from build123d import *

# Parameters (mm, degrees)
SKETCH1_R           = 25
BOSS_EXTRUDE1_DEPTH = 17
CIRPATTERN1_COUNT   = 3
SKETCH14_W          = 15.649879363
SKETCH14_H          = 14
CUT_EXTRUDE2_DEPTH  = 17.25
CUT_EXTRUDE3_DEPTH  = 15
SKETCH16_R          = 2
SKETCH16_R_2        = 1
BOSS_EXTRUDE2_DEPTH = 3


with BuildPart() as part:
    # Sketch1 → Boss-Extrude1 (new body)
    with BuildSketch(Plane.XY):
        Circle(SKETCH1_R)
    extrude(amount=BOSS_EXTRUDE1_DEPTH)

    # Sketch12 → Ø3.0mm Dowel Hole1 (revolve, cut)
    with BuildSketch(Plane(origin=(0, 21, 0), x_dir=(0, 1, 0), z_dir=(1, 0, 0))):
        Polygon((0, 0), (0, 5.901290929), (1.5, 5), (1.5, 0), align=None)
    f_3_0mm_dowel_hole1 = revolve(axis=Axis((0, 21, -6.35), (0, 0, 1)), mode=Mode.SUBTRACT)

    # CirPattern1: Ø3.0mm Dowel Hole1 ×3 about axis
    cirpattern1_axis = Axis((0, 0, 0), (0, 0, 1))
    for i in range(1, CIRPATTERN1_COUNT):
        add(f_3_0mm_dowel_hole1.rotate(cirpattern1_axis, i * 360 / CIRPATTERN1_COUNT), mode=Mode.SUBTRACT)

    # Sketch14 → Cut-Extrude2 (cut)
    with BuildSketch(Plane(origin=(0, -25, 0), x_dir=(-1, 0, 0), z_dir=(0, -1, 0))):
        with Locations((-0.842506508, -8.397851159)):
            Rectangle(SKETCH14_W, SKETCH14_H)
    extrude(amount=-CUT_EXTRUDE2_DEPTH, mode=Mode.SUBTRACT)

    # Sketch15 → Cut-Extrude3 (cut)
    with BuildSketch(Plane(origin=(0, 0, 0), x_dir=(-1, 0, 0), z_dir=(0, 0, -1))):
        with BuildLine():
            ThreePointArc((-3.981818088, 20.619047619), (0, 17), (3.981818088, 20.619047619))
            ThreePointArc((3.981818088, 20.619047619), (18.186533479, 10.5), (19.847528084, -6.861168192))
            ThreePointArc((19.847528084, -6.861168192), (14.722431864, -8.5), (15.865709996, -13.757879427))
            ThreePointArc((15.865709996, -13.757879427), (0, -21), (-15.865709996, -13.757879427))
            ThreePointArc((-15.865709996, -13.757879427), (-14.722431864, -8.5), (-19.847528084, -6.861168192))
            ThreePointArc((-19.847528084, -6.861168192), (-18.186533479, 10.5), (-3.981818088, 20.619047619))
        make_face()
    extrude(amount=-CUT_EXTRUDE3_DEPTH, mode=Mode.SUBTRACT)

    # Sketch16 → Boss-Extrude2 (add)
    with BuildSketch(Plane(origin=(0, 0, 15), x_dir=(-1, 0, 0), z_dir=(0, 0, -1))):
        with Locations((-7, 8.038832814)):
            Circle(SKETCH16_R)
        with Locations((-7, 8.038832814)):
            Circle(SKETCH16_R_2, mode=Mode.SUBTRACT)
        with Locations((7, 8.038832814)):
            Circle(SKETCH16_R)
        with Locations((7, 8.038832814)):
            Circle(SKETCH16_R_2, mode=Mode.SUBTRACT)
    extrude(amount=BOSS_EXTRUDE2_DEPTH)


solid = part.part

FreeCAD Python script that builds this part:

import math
import FreeCAD as App
import Part
import Sketcher

V = App.Vector
Q = App.Units.Quantity

doc = App.newDocument("Part")
body = doc.addObject("PartDesign::Body", "Body")

# Sketch on XY plane
sketch1 = doc.addObject("Sketcher::SketchObject", "Sketch")
body.addObject(sketch1)
sketch1.AttachmentSupport = (doc.XY_Plane, [""])
sketch1.MapMode = "FlatFace"
sketch1.addGeometry(Part.Circle(V(0, 0, 0), V(0, 0, 1), 25), False)
sketch1.addConstraint(Sketcher.Constraint("Coincident", 0, 3, -1, 1))
sketch1.addConstraint(Sketcher.Constraint("Diameter", 0, Q("50 mm")))
pad1 = doc.addObject("PartDesign::Pad", "Pad")
body.addObject(pad1)
pad1.Profile = sketch1
pad1.Length = 17

# Sketch on YZ plane
sketch2 = doc.addObject("Sketcher::SketchObject", "Sketch001")
body.addObject(sketch2)
sketch2.AttachmentSupport = (doc.YZ_Plane, [""])
sketch2.MapMode = "FlatFace"
sketch2.addGeometry(Part.LineSegment(V(21, 5.9, 0), V(21, 0, 0)), False)
sketch2.addGeometry(Part.LineSegment(V(21, 0, 0), V(22.5, 0, 0)), False)
sketch2.addGeometry(Part.LineSegment(V(22.5, 0, 0), V(22.5, 5, 0)), False)
sketch2.addGeometry(Part.LineSegment(V(22.5, 5, 0), V(21, 5.9, 0)), False)
sketch2.addGeometry(Part.LineSegment(V(21, 0, 0), V(21, 5.9, 0)), True)  # axis
sketch2.addConstraint(Sketcher.Constraint("Coincident", 0, 2, 1, 1))
sketch2.addConstraint(Sketcher.Constraint("Coincident", 1, 2, 2, 1))
sketch2.addConstraint(Sketcher.Constraint("Coincident", 2, 2, 3, 1))
sketch2.addConstraint(Sketcher.Constraint("Coincident", 3, 2, 0, 1))
sketch2.addConstraint(Sketcher.Constraint("Vertical", 0))
sketch2.addConstraint(Sketcher.Constraint("Horizontal", 1))
sketch2.addConstraint(Sketcher.Constraint("Vertical", 2))
sketch2.addConstraint(Sketcher.Constraint("Vertical", 4))
sketch2.addConstraint(Sketcher.Constraint("Coincident", 4, 1, 0, 2))
sketch2.addConstraint(Sketcher.Constraint("PointOnObject", 0, 2, -1))
sketch2.addConstraint(Sketcher.Constraint("Equal", 0, 4))
sketch2.addConstraint(Sketcher.Constraint("DistanceY", 2, 1, 2, 2, Q("5 mm")))
sketch2.addConstraint(Sketcher.Constraint("Angle", 3, Q("149 deg")))
sketch2.addConstraint(Sketcher.Constraint("DistanceX", 1, 1, 1, 2, Q("1.5 mm")))
sketch2.addConstraint(Sketcher.Constraint("DistanceX", -1, 1, 0, 2, Q("21 mm")))
groove = doc.addObject("PartDesign::Groove", "Groove")
body.addObject(groove)
groove.Profile = sketch2
groove.ReferenceAxis = (sketch2, ["Axis0"])
groove.Angle = 360
doc.recompute()

polarpattern = doc.addObject("PartDesign::PolarPattern", "PolarPattern")
body.addObject(polarpattern)
polarpattern.Originals = [groove]
polarpattern.Axis = (doc.Z_Axis, [""])
polarpattern.Angle = 360
polarpattern.Occurrences = 3
body.Tip = polarpattern

# Sketch on XZ plane
sketch3 = doc.addObject("Sketcher::SketchObject", "Sketch002")
body.addObject(sketch3)
sketch3.AttachmentSupport = (doc.XZ_Plane, [""])
sketch3.MapMode = "FlatFace"
sketch3.AttachmentOffset = App.Placement(V(0, 0, 25), App.Rotation())
sketch3.addGeometry(Part.LineSegment(V(9, 1, 0), V(9, 15, 0)), False)
sketch3.addGeometry(Part.LineSegment(V(9, 15, 0), V(-7, 15, 0)), False)
sketch3.addGeometry(Part.LineSegment(V(-7, 15, 0), V(-7, 1, 0)), False)
sketch3.addGeometry(Part.LineSegment(V(-7, 1, 0), V(9, 1, 0)), False)
sketch3.addConstraint(Sketcher.Constraint("Coincident", 0, 2, 1, 1))
sketch3.addConstraint(Sketcher.Constraint("Coincident", 1, 2, 2, 1))
sketch3.addConstraint(Sketcher.Constraint("Coincident", 2, 2, 3, 1))
sketch3.addConstraint(Sketcher.Constraint("Coincident", 3, 2, 0, 1))
sketch3.addConstraint(Sketcher.Constraint("Vertical", 0))
sketch3.addConstraint(Sketcher.Constraint("Horizontal", 1))
sketch3.addConstraint(Sketcher.Constraint("Vertical", 2))
sketch3.addConstraint(Sketcher.Constraint("Horizontal", 3))
sketch3.addConstraint(Sketcher.Constraint("DistanceY", 0, 1, 0, 2, Q("14 mm")))
sketch3.addConstraint(Sketcher.Constraint("DistanceX", 1, 2, 1, 1, Q("15.649879 mm")))
sketch3.addConstraint(Sketcher.Constraint("DistanceY", -1, 1, 0, 2, Q("15.397851 mm")))
sketch3.addConstraint(Sketcher.Constraint("DistanceX", -1, 1, 0, 2, Q("8.667446 mm")))
pocket1 = doc.addObject("PartDesign::Pocket", "Pocket")
body.addObject(pocket1)
pocket1.Profile = sketch3
pocket1.Length = 17.25

# Sketch on XY plane
sketch4 = doc.addObject("Sketcher::SketchObject", "Sketch003")
body.addObject(sketch4)
sketch4.AttachmentSupport = (doc.XY_Plane, [""])
sketch4.MapMode = "FlatFace"
sketch4.addGeometry(Part.ArcOfCircle(Part.Circle(V(0, 21, 0), V(0, 0, 1), 4), math.radians(-175), math.radians(-5)), False)
sketch4.addGeometry(Part.ArcOfCircle(Part.Circle(V(0, 0, 0), V(0, 0, 1), 21), math.radians(-19), math.radians(79)), False)
sketch4.addGeometry(Part.ArcOfCircle(Part.Circle(V(18.2, -10.5, 0), V(0, 0, 1), 4), math.radians(65), math.radians(235)), False)
sketch4.addGeometry(Part.ArcOfCircle(Part.Circle(V(0, 0, 0), V(0, 0, 1), 21), math.radians(-139), math.radians(-41)), False)
sketch4.addGeometry(Part.ArcOfCircle(Part.Circle(V(-18.2, -10.5, 0), V(0, 0, 1), 4), math.radians(-55), math.radians(115)), False)
sketch4.addGeometry(Part.ArcOfCircle(Part.Circle(V(0, 0, 0), V(0, 0, 1), 21), math.radians(101), math.radians(199)), False)
sketch4.addConstraint(Sketcher.Constraint("Coincident", 0, 2, 1, 2))
sketch4.addConstraint(Sketcher.Constraint("Coincident", 1, 1, 2, 1))
sketch4.addConstraint(Sketcher.Constraint("Coincident", 2, 2, 3, 2))
sketch4.addConstraint(Sketcher.Constraint("Coincident", 3, 1, 4, 1))
sketch4.addConstraint(Sketcher.Constraint("Coincident", 4, 2, 5, 2))
sketch4.addConstraint(Sketcher.Constraint("Coincident", 5, 1, 0, 1))
sketch4.addConstraint(Sketcher.Constraint("Coincident", 1, 3, -1, 1))
sketch4.addConstraint(Sketcher.Constraint("Coincident", 3, 3, -1, 1))
sketch4.addConstraint(Sketcher.Constraint("Coincident", 5, 3, -1, 1))
sketch4.addConstraint(Sketcher.Constraint("Equal", 0, 2))
sketch4.addConstraint(Sketcher.Constraint("Equal", 1, 3))
sketch4.addConstraint(Sketcher.Constraint("Equal", 2, 4))
sketch4.addConstraint(Sketcher.Constraint("Equal", 3, 5))
sketch4.addConstraint(Sketcher.Constraint("Symmetric", 2, 3, 4, 3, -2))
sketch4.addConstraint(Sketcher.Constraint("PointOnObject", 0, 3, -2))
sketch4.addConstraint(Sketcher.Constraint("Radius", 0, Q("4 mm")))
sketch4.addConstraint(Sketcher.Constraint("Radius", 1, Q("21 mm")))
sketch4.addConstraint(Sketcher.Constraint("DistanceY", -1, 1, 0, 3, Q("21 mm")))
sketch4.addConstraint(Sketcher.Constraint("DistanceY", 2, 3, -1, 1, Q("10.5 mm")))
sketch4.addConstraint(Sketcher.Constraint("DistanceX", -1, 1, 1, 1, Q("19.847528 mm")))
pocket2 = doc.addObject("PartDesign::Pocket", "Pocket001")
body.addObject(pocket2)
pocket2.Profile = sketch4
pocket2.Length = 15
pocket2.Reversed = True

# Sketch on XY plane
sketch5 = doc.addObject("Sketcher::SketchObject", "Sketch004")
body.addObject(sketch5)
sketch5.AttachmentSupport = (doc.XY_Plane, [""])
sketch5.MapMode = "FlatFace"
sketch5.AttachmentOffset = App.Placement(V(0, 0, 15), App.Rotation())
sketch5.addGeometry(Part.Circle(V(7, 8, 0), V(0, 0, 1), 2), False)
sketch5.addGeometry(Part.Circle(V(7, 8, 0), V(0, 0, 1), 1), False)
sketch5.addGeometry(Part.Circle(V(-7, 8, 0), V(0, 0, 1), 2), False)
sketch5.addGeometry(Part.Circle(V(-7, 8, 0), V(0, 0, 1), 1), False)
sketch5.addConstraint(Sketcher.Constraint("Coincident", 1, 3, 0, 3))
sketch5.addConstraint(Sketcher.Constraint("Coincident", 3, 3, 2, 3))
sketch5.addConstraint(Sketcher.Constraint("Equal", 0, 2))
sketch5.addConstraint(Sketcher.Constraint("Equal", 1, 3))
sketch5.addConstraint(Sketcher.Constraint("Symmetric", 0, 3, 2, 3, -2))
sketch5.addConstraint(Sketcher.Constraint("Diameter", 0, Q("4 mm")))
sketch5.addConstraint(Sketcher.Constraint("Diameter", 1, Q("2 mm")))
sketch5.addConstraint(Sketcher.Constraint("DistanceX", -1, 1, 0, 3, Q("7 mm")))
sketch5.addConstraint(Sketcher.Constraint("DistanceY", -1, 1, 0, 3, Q("8.038833 mm")))
pad2 = doc.addObject("PartDesign::Pad", "Pad001")
body.addObject(pad2)
pad2.Profile = sketch5
pad2.Length = 3
pad2.Reversed = True

doc.recompute()
